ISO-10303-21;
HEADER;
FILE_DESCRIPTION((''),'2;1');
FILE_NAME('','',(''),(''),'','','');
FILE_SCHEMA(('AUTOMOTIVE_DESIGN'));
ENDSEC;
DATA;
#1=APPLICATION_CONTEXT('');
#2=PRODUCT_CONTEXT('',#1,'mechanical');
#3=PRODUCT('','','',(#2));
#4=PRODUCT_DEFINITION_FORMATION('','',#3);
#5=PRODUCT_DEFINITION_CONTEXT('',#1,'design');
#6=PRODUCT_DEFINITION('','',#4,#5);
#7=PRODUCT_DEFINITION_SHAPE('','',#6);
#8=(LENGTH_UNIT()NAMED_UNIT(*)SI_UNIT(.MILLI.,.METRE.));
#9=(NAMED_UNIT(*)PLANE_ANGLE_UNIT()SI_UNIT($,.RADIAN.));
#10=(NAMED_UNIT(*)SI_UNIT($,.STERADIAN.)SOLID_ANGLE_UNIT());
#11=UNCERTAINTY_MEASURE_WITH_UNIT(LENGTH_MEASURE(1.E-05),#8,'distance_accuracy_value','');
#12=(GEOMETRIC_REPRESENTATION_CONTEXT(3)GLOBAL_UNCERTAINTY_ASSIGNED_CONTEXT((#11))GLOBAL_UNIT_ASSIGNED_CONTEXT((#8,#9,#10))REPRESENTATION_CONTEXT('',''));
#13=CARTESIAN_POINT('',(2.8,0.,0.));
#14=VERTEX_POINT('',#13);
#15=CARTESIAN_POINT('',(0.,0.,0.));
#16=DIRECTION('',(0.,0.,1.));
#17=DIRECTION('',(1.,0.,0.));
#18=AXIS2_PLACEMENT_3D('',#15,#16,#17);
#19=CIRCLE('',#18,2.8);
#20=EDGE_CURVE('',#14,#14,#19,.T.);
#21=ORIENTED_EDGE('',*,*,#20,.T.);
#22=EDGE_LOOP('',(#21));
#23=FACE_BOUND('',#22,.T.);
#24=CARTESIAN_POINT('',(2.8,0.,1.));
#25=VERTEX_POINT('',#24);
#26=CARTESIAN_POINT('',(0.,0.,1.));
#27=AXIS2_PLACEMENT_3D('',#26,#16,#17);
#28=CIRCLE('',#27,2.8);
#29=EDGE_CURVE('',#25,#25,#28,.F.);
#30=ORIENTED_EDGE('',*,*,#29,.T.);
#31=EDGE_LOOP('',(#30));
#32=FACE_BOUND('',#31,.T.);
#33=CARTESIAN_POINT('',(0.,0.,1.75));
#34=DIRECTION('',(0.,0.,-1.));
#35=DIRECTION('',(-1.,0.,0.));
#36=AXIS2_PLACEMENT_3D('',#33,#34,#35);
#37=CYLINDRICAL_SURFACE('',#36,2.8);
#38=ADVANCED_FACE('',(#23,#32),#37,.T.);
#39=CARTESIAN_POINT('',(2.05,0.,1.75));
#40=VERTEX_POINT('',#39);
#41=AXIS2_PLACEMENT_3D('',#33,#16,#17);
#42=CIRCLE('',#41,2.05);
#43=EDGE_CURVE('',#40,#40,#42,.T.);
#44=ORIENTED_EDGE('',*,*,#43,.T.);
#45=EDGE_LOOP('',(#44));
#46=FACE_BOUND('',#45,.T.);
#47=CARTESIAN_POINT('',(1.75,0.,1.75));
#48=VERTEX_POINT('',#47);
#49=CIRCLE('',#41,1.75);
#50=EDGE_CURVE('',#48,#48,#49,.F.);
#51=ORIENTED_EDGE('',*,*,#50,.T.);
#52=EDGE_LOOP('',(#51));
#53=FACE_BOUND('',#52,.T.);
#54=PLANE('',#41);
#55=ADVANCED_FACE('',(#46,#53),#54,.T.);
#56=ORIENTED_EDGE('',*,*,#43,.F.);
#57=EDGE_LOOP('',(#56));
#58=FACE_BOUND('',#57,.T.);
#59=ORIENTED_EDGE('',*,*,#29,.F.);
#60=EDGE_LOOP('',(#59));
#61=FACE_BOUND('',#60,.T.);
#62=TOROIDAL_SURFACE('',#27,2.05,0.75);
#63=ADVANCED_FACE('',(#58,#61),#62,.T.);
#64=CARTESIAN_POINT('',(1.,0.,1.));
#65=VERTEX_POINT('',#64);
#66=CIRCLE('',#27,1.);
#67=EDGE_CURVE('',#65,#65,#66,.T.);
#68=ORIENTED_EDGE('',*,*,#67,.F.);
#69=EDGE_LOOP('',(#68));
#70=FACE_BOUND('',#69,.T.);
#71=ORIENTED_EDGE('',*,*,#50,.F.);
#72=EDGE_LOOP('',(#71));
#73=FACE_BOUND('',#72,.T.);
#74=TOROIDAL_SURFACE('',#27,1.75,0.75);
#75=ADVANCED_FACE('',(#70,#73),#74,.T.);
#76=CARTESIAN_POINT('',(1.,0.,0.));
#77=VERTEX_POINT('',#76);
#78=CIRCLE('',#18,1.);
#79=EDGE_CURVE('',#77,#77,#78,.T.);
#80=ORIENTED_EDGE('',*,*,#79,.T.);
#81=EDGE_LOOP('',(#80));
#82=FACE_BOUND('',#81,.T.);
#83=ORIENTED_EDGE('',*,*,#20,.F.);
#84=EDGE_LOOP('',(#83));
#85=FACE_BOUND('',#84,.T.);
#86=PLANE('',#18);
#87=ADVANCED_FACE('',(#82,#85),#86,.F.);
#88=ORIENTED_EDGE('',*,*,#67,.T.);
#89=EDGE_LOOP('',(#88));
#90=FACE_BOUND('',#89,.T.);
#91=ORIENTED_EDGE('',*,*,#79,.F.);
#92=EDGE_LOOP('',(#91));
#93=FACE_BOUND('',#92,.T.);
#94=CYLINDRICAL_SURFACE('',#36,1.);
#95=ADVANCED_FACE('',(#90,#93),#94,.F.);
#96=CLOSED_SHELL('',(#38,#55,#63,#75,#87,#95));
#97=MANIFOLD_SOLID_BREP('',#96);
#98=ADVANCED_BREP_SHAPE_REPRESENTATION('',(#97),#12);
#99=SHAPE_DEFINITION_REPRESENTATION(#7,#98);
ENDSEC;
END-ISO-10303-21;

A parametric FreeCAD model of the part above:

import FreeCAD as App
import Part
import Sketcher


def edges_at(feature, points):
    """Names of the edges that pass closest to the given points."""
    edges = feature.Shape.Edges
    near = lambda p: min(range(len(edges)), key=lambda i: edges[i].distToShape(Part.Vertex(*p))[0])
    return sorted({f"Edge{near(p) + 1}" for p in points})

doc = App.newDocument("Part")
body = doc.addObject("PartDesign::Body", "Body")

# Sketch on XY plane
sketch1 = body.newObject("Sketcher::SketchObject", "Sketch")
sketch1.AttachmentSupport = (doc.getObject("XY_Plane"), [""])
sketch1.MapMode = "FlatFace"
sketch1.addGeometry([
    Part.Circle(App.Vector(0, 0, 0), App.Vector(0, 0, 1), 2.8),
    Part.Circle(App.Vector(0, 0, 0), App.Vector(0, 0, 1), 1),
], False)
sketch1.addConstraint([
    Sketcher.Constraint("Coincident", 0, 3, -1, 1),
    Sketcher.Constraint("Coincident", 1, 3, -1, 1),
    Sketcher.Constraint("Diameter", 1, 2.0),
    Sketcher.Constraint("Diameter", 0, 5.6),
])
pad1 = body.newObject("PartDesign::Pad", "Pad")
pad1.Profile = sketch1
pad1.Length = 1.75
doc.recompute()

fillet = body.newObject("PartDesign::Fillet", "Fillet")
fillet.Base = (pad1, edges_at(pad1, [(-2.8, 0, 1.75), (-1, 0, 1.75)]))
fillet.Radius = 0.75

doc.recompute()
